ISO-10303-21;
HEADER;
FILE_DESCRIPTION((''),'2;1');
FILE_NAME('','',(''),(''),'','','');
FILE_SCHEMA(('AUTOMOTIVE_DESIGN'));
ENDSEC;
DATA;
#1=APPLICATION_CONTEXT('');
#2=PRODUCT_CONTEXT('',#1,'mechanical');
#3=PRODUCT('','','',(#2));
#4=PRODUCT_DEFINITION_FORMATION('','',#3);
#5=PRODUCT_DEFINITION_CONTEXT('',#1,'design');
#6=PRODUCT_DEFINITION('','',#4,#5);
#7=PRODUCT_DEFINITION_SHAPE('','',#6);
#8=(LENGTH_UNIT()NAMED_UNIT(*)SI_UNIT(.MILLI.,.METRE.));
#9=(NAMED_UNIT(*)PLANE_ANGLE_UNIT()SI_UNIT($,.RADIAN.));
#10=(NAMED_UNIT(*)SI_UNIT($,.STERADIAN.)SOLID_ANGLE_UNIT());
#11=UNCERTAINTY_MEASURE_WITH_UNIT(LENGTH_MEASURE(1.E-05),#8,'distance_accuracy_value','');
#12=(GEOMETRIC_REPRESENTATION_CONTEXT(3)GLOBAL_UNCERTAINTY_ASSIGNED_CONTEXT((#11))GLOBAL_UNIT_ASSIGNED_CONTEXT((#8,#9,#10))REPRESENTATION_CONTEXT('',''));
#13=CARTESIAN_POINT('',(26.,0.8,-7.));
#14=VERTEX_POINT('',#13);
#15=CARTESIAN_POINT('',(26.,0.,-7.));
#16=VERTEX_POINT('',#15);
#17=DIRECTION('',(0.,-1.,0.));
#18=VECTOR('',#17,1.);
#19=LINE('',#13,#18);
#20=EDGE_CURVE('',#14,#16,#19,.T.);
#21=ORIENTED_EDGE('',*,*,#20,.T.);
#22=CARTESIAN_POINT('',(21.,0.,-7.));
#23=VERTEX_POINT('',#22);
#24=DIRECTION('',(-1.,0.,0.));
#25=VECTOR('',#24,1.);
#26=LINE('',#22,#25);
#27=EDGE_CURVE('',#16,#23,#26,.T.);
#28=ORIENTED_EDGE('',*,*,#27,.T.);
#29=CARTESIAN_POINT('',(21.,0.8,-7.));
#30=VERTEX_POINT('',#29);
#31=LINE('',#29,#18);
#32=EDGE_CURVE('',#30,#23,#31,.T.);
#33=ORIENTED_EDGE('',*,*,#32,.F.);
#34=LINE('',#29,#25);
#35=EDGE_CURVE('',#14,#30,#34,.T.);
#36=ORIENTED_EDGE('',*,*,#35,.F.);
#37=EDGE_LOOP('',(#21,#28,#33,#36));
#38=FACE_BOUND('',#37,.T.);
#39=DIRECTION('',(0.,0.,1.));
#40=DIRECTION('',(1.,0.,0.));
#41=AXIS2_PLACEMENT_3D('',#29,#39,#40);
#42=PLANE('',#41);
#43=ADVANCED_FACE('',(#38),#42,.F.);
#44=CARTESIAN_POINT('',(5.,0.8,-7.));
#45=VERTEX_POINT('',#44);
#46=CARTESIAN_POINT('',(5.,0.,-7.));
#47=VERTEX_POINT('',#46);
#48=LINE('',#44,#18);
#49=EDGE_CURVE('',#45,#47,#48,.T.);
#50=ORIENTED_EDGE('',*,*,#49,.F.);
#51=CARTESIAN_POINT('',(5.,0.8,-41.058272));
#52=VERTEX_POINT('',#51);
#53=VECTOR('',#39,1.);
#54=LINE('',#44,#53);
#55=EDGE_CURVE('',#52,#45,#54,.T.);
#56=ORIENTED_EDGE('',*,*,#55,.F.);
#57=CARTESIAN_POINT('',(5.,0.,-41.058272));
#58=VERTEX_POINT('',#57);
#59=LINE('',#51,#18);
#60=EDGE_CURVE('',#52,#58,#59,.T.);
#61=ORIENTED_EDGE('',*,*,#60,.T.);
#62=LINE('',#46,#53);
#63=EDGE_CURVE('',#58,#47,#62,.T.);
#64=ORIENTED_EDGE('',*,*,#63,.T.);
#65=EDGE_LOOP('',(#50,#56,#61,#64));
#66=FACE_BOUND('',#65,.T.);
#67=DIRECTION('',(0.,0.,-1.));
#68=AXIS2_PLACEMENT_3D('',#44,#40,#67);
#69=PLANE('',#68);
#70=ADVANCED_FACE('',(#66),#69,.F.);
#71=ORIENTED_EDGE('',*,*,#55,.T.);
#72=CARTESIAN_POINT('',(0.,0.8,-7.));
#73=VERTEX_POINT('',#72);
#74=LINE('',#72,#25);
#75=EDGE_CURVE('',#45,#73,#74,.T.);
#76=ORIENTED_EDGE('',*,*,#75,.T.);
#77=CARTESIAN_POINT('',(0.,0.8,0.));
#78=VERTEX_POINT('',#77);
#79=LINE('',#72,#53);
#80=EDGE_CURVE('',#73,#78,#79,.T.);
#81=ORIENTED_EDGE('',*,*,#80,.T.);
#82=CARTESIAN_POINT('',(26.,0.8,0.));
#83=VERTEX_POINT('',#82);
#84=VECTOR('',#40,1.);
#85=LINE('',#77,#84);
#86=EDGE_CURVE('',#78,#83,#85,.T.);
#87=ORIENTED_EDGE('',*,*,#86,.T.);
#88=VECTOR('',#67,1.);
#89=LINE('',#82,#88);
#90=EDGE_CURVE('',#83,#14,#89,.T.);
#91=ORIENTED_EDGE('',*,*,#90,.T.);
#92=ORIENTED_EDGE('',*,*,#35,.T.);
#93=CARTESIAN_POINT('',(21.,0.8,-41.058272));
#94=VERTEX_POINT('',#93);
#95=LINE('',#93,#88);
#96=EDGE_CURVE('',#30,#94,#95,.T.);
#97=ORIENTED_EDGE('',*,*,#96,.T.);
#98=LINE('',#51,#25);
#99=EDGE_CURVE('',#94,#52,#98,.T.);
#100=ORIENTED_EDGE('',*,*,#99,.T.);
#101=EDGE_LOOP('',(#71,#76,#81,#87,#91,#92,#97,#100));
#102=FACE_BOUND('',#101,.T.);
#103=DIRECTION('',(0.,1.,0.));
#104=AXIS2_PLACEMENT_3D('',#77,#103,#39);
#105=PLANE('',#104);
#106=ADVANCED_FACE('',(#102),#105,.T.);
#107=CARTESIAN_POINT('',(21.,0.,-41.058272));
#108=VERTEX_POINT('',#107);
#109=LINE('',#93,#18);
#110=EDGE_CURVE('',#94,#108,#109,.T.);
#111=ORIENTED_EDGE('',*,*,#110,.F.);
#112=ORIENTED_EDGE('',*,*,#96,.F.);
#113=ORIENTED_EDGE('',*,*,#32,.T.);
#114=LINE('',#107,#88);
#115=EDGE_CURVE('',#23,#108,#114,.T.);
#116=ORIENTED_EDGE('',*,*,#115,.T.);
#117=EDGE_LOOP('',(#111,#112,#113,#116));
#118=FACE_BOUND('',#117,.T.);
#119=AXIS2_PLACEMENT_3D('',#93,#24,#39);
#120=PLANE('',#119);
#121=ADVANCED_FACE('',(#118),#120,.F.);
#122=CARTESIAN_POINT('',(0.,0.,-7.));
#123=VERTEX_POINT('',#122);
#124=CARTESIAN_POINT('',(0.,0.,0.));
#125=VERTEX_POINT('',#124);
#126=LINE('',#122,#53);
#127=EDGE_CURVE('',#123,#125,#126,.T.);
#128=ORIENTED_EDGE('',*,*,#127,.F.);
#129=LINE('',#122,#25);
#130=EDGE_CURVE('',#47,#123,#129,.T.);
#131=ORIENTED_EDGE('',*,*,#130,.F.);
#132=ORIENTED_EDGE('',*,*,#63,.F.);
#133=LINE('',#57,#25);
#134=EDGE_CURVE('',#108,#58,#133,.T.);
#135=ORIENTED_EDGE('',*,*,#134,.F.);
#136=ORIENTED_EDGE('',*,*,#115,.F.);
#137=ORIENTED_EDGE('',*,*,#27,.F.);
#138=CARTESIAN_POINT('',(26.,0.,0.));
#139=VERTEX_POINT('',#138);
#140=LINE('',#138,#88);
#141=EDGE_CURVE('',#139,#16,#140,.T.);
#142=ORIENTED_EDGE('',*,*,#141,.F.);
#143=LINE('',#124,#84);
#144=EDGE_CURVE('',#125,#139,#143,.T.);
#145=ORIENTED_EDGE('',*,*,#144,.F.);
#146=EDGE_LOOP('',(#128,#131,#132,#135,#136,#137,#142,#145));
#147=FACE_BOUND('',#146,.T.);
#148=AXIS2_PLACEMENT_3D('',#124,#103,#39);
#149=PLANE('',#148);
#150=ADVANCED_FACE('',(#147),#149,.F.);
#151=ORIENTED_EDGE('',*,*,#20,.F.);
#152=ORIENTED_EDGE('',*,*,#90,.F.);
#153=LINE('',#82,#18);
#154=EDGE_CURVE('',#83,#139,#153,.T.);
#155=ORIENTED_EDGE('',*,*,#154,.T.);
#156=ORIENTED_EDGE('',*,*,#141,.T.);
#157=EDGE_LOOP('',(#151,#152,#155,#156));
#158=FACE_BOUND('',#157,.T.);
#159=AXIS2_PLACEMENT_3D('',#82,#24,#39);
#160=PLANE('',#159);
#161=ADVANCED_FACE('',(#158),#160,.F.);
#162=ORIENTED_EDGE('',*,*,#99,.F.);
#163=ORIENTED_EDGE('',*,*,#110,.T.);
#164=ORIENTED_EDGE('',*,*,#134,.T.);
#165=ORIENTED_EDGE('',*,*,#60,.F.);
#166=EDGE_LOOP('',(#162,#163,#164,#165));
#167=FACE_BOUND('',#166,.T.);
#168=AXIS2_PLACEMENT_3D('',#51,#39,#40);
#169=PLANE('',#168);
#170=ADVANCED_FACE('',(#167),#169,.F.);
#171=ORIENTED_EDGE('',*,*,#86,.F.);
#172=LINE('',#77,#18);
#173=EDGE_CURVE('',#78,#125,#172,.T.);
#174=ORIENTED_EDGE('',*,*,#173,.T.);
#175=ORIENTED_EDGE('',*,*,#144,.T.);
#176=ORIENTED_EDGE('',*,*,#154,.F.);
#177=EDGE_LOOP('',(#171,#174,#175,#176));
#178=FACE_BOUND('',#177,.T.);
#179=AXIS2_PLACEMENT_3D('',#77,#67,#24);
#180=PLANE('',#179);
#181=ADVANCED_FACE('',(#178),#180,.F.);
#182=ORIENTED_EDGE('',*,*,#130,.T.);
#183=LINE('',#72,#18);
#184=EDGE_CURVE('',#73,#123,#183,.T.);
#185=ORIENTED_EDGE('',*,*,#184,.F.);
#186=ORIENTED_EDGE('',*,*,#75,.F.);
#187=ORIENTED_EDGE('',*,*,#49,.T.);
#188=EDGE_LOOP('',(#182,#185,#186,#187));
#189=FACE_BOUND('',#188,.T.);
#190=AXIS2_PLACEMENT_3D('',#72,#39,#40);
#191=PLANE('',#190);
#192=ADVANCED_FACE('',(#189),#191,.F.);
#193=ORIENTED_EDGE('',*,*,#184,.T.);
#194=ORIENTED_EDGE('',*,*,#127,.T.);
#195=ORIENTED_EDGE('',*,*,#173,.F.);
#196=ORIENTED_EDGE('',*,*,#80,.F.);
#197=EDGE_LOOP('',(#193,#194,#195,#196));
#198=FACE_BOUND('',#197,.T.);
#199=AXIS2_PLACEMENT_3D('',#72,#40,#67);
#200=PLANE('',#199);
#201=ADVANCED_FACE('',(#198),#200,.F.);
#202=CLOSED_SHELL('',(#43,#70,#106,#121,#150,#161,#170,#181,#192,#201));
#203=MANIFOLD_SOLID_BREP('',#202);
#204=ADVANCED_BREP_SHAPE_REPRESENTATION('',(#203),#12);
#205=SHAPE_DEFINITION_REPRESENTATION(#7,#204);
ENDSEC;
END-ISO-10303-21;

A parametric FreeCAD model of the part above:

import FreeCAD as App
import Part
import Sketcher

V = App.Vector
Q = App.Units.Quantity

doc = App.newDocument("Part")
body = doc.addObject("PartDesign::Body", "Body")

sketch1 = doc.addObject("Sketcher::SketchObject", "Sketch")
body.addObject(sketch1)
sketch1.AttachmentSupport = (doc.XZ_Plane, [""])
sketch1.MapMode = "FlatFace"
sketch1.addGeometry(Part.LineSegment(V(0, 0, 0), V(26, 0, 0)), False)
sketch1.addGeometry(Part.LineSegment(V(26, 0, 0), V(26, -7, 0)), False)
sketch1.addGeometry(Part.LineSegment(V(26, -7, 0), V(21, -7, 0)), False)
sketch1.addGeometry(Part.LineSegment(V(21, -7, 0), V(21, -41, 0)), False)
sketch1.addGeometry(Part.LineSegment(V(21, -41, 0), V(5, -41, 0)), False)
sketch1.addGeometry(Part.LineSegment(V(5, -41, 0), V(5, -7, 0)), False)
sketch1.addGeometry(Part.LineSegment(V(5, -7, 0), V(0, -7, 0)), False)
sketch1.addGeometry(Part.LineSegment(V(0, -7, 0), V(0, 0, 0)), False)
sketch1.addConstraint(Sketcher.Constraint("Coincident", 0, 2, 1, 1))
sketch1.addConstraint(Sketcher.Constraint("Coincident", 1, 2, 2, 1))
sketch1.addConstraint(Sketcher.Constraint("Coincident", 2, 2, 3, 1))
sketch1.addConstraint(Sketcher.Constraint("Coincident", 3, 2, 4, 1))
sketch1.addConstraint(Sketcher.Constraint("Coincident", 4, 2, 5, 1))
sketch1.addConstraint(Sketcher.Constraint("Coincident", 5, 2, 6, 1))
sketch1.addConstraint(Sketcher.Constraint("Coincident", 6, 2, 7, 1))
sketch1.addConstraint(Sketcher.Constraint("Coincident", 7, 2, 0, 1))
sketch1.addConstraint(Sketcher.Constraint("Horizontal", 0))
sketch1.addConstraint(Sketcher.Constraint("Vertical", 1))
sketch1.addConstraint(Sketcher.Constraint("Horizontal", 2))
sketch1.addConstraint(Sketcher.Constraint("Vertical", 3))
sketch1.addConstraint(Sketcher.Constraint("Horizontal", 4))
sketch1.addConstraint(Sketcher.Constraint("Vertical", 5))
sketch1.addConstraint(Sketcher.Constraint("Horizontal", 6))
sketch1.addConstraint(Sketcher.Constraint("Vertical", 7))
sketch1.addConstraint(Sketcher.Constraint("Coincident", 7, 2, -1, 1))
sketch1.addConstraint(Sketcher.Constraint("Horizontal", 2, 2, 5, 2))
sketch1.addConstraint(Sketcher.Constraint("Equal", 2, 6))
sketch1.addConstraint(Sketcher.Constraint("DistanceX", 0, 1, 0, 2, Q("26 mm")))
sketch1.addConstraint(Sketcher.Constraint("DistanceX", 2, 2, 2, 1, Q("5 mm")))
sketch1.addConstraint(Sketcher.Constraint("DistanceY", 1, 2, 1, 1, Q("7 mm")))
sketch1.addConstraint(Sketcher.Constraint("DistanceY", 3, 2, 3, 1, Q("34.058272 mm")))
pad1 = doc.addObject("PartDesign::Pad", "Pad")
body.addObject(pad1)
pad1.Profile = sketch1
pad1.Length = 0.8
pad1.Reversed = True

doc.recompute()
